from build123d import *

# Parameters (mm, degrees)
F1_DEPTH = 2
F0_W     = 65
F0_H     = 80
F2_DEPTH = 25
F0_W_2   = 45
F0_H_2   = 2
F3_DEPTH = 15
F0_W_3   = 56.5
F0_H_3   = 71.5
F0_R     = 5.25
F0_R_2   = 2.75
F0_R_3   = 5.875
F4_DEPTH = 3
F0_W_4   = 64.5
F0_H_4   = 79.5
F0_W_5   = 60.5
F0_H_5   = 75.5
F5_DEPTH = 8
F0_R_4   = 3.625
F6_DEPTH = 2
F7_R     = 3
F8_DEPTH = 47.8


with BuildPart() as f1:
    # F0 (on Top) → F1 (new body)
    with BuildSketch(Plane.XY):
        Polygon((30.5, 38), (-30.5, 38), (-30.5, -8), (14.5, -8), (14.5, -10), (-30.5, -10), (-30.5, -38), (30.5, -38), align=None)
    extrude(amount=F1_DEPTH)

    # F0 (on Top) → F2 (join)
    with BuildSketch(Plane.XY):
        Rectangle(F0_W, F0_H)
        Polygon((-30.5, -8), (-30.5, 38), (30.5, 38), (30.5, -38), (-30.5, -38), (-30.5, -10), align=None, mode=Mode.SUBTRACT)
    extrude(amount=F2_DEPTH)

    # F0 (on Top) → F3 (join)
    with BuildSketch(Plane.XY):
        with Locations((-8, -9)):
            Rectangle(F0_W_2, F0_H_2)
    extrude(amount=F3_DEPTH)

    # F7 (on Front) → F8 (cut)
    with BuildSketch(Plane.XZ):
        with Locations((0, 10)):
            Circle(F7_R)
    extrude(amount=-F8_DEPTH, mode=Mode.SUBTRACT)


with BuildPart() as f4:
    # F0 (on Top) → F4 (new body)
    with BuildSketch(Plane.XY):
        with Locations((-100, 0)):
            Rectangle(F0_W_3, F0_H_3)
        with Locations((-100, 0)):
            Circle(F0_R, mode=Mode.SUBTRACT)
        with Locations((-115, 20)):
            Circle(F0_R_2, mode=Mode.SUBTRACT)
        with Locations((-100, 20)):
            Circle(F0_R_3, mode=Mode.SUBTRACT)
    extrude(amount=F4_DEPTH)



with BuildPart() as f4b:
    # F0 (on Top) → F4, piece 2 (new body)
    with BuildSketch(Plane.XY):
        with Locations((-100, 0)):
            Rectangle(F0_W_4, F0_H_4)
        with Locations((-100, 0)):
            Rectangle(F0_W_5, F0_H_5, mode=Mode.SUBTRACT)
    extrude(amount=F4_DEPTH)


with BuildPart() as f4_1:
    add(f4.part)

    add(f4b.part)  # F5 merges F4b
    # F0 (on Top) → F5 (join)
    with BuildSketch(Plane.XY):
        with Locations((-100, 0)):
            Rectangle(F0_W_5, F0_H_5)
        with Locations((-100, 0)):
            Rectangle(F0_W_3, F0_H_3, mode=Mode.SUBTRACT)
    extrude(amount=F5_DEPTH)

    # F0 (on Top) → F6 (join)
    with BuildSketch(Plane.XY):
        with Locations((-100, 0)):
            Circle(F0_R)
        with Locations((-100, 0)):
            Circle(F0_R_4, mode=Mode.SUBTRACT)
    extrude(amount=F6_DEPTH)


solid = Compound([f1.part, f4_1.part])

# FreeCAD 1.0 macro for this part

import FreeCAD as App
import Part
import Sketcher

doc = App.newDocument("Part")
params = doc.addObject("Spreadsheet::Sheet", "Params")
for row, (alias, value) in enumerate([
    ("sketch1_width", "61 mm"),
    ("sketch1_width2", "45 mm"),
    ("sketch1_height", "46 mm"),
    ("sketch1_height2", "2 mm"),
    ("sketch1_height3", "28 mm"),
    ("pad1_length", "2 mm"),
    ("sketch2_width", "65 mm"),
    ("sketch2_width2", "61 mm"),
    ("sketch2_height", "80 mm"),
    ("sketch2_height2", "76 mm"),
    ("pad2_length", "25 mm"),
    ("sketch3_width", "45 mm"),
    ("sketch3_height", "2 mm"),
    ("pad3_length", "15 mm"),
    ("sketch4_diameter", "6 mm"),
    ("pocket1_length", "47.8 mm"),
    ("sketch5_diameter", "10.5 mm"),
    ("sketch5_diameter2", "5.5 mm"),
    ("sketch5_diameter3", "11.75 mm"),
    ("sketch5_width", "56.5 mm"),
    ("sketch5_height", "71.5 mm"),
    ("pad4_length", "3 mm"),
    ("sketch6_width", "64.5 mm"),
    ("sketch6_width2", "60.5 mm"),
    ("sketch6_height", "79.5 mm"),
    ("sketch6_height2", "75.5 mm"),
    ("pad5_length", "3 mm"),
    ("sketch7_width", "60.5 mm"),
    ("sketch7_width2", "56.5 mm"),
    ("sketch7_height", "75.5 mm"),
    ("sketch7_height2", "71.5 mm"),
    ("pad6_length", "8 mm"),
    ("sketch8_diameter", "10.5 mm"),
    ("sketch8_diameter2", "7.25 mm"),
    ("pad7_length", "2 mm"),
], start=1):
    params.set(f"A{row}", alias)
    params.set(f"B{row}", "=" + value)
    params.setAlias(f"B{row}", alias)

body = doc.addObject("PartDesign::Body", "Body")

# Sketch on XY plane
sketch1 = body.newObject("Sketcher::SketchObject", "Sketch")
sketch1.AttachmentSupport = (doc.getObject("XY_Plane"), [""])
sketch1.MapMode = "FlatFace"
sketch1.addGeometry(Part.LineSegment(App.Vector(30.5, 38, 0), App.Vector(-30.5, 38, 0)), False)
sketch1.addGeometry(Part.LineSegment(App.Vector(-30.5, 38, 0), App.Vector(-30.5, -8, 0)), False)
sketch1.addGeometry(Part.LineSegment(App.Vector(-30.5, -8, 0), App.Vector(14.5, -8, 0)), False)
sketch1.addGeometry(Part.LineSegment(App.Vector(14.5, -8, 0), App.Vector(14.5, -10, 0)), False)
sketch1.addGeometry(Part.LineSegment(App.Vector(14.5, -10, 0), App.Vector(-30.5, -10, 0)), False)
sketch1.addGeometry(Part.LineSegment(App.Vector(-30.5, -10, 0), App.Vector(-30.5, -38, 0)), False)
sketch1.addGeometry(Part.LineSegment(App.Vector(-30.5, -38, 0), App.Vector(30.5, -38, 0)), False)
sketch1.addGeometry(Part.LineSegment(App.Vector(30.5, -38, 0), App.Vector(30.5, 38, 0)), False)
sketch1.addConstraint(Sketcher.Constraint("Coincident", 0, 2, 1, 1))
sketch1.addConstraint(Sketcher.Constraint("Coincident", 1, 2, 2, 1))
sketch1.addConstraint(Sketcher.Constraint("Coincident", 2, 2, 3, 1))
sketch1.addConstraint(Sketcher.Constraint("Coincident", 3, 2, 4, 1))
sketch1.addConstraint(Sketcher.Constraint("Coincident", 4, 2, 5, 1))
sketch1.addConstraint(Sketcher.Constraint("Coincident", 5, 2, 6, 1))
sketch1.addConstraint(Sketcher.Constraint("Coincident", 6, 2, 7, 1))
sketch1.addConstraint(Sketcher.Constraint("Coincident", 7, 2, 0, 1))
sketch1.addConstraint(Sketcher.Constraint("Horizontal", 0))
sketch1.addConstraint(Sketcher.Constraint("Vertical", 1))
sketch1.addConstraint(Sketcher.Constraint("Horizontal", 2))
sketch1.addConstraint(Sketcher.Constraint("Vertical", 3))
sketch1.addConstraint(Sketcher.Constraint("Horizontal", 4))
sketch1.addConstraint(Sketcher.Constraint("Vertical", 5))
sketch1.addConstraint(Sketcher.Constraint("Horizontal", 6))
sketch1.addConstraint(Sketcher.Constraint("Vertical", 7))
sketch1.addConstraint(Sketcher.Constraint("Symmetric", 0, 2, 6, 2, -1, 1))
sketch1.addConstraint(Sketcher.Constraint("Vertical", 1, 2, 4, 2))
sketch1.addConstraint(Sketcher.Constraint("DistanceX", 0, 2, 0, 1, 61.0))
sketch1.addConstraint(Sketcher.Constraint("DistanceX", 2, 1, 2, 2, 45.0))
sketch1.addConstraint(Sketcher.Constraint("DistanceY", 1, 2, 1, 1, 46.0))
sketch1.addConstraint(Sketcher.Constraint("DistanceY", 3, 2, 3, 1, 2.0))
sketch1.addConstraint(Sketcher.Constraint("DistanceY", 5, 2, 5, 1, 28.0))
sketch1.setExpression("Constraints[18]", "Params.sketch1_width")
sketch1.setExpression("Constraints[19]", "Params.sketch1_width2")
sketch1.setExpression("Constraints[20]", "Params.sketch1_height")
sketch1.setExpression("Constraints[21]", "Params.sketch1_height2")
sketch1.setExpression("Constraints[22]", "Params.sketch1_height3")
pad1 = body.newObject("PartDesign::Pad", "Pad")
pad1.Profile = sketch1
pad1.setExpression("Length", "Params.pad1_length")

# Sketch on XY plane
sketch2 = body.newObject("Sketcher::SketchObject", "Sketch001")
sketch2.AttachmentSupport = (doc.getObject("XY_Plane"), [""])
sketch2.MapMode = "FlatFace"
sketch2.addGeometry(Part.LineSegment(App.Vector(-32.5, 40, 0), App.Vector(-32.5, -40, 0)), False)
sketch2.addGeometry(Part.LineSegment(App.Vector(-32.5, -40, 0), App.Vector(32.5, -40, 0)), False)
sketch2.addGeometry(Part.LineSegment(App.Vector(32.5, -40, 0), App.Vector(32.5, 40, 0)), False)
sketch2.addGeometry(Part.LineSegment(App.Vector(32.5, 40, 0), App.Vector(-32.5, 40, 0)), False)
sketch2.addGeometry(Part.LineSegment(App.Vector(-30.5, -38, 0), App.Vector(-30.5, 38, 0)), False)
sketch2.addGeometry(Part.LineSegment(App.Vector(-30.5, 38, 0), App.Vector(30.5, 38, 0)), False)
sketch2.addGeometry(Part.LineSegment(App.Vector(30.5, 38, 0), App.Vector(30.5, -38, 0)), False)
sketch2.addGeometry(Part.LineSegment(App.Vector(30.5, -38, 0), App.Vector(-30.5, -38, 0)), False)
sketch2.addConstraint(Sketcher.Constraint("Coincident", 0, 2, 1, 1))
sketch2.addConstraint(Sketcher.Constraint("Coincident", 1, 2, 2, 1))
sketch2.addConstraint(Sketcher.Constraint("Coincident", 2, 2, 3, 1))
sketch2.addConstraint(Sketcher.Constraint("Coincident", 3, 2, 0, 1))
sketch2.addConstraint(Sketcher.Constraint("Coincident", 4, 2, 5, 1))
sketch2.addConstraint(Sketcher.Constraint("Coincident", 5, 2, 6, 1))
sketch2.addConstraint(Sketcher.Constraint("Coincident", 6, 2, 7, 1))
sketch2.addConstraint(Sketcher.Constraint("Coincident", 7, 2, 4, 1))
sketch2.addConstraint(Sketcher.Constraint("Vertical", 0))
sketch2.addConstraint(Sketcher.Constraint("Horizontal", 1))
sketch2.addConstraint(Sketcher.Constraint("Vertical", 2))
sketch2.addConstraint(Sketcher.Constraint("Horizontal", 3))
sketch2.addConstraint(Sketcher.Constraint("Vertical", 4))
sketch2.addConstraint(Sketcher.Constraint("Horizontal", 5))
sketch2.addConstraint(Sketcher.Constraint("Vertical", 6))
sketch2.addConstraint(Sketcher.Constraint("Horizontal", 7))
sketch2.addConstraint(Sketcher.Constraint("Symmetric", 0, 2, 2, 2, -1, 1))
sketch2.addConstraint(Sketcher.Constraint("Symmetric", 4, 2, 6, 2, -1, 1))
sketch2.addConstraint(Sketcher.Constraint("DistanceX", 1, 1, 1, 2, 65.0))
sketch2.addConstraint(Sketcher.Constraint("DistanceX", 5, 1, 5, 2, 61.0))
sketch2.addConstraint(Sketcher.Constraint("DistanceY", 0, 2, 0, 1, 80.0))
sketch2.addConstraint(Sketcher.Constraint("DistanceY", 4, 1, 4, 2, 76.0))
sketch2.setExpression("Constraints[18]", "Params.sketch2_width")
sketch2.setExpression("Constraints[19]", "Params.sketch2_width2")
sketch2.setExpression("Constraints[20]", "Params.sketch2_height")
sketch2.setExpression("Constraints[21]", "Params.sketch2_height2")
pad2 = body.newObject("PartDesign::Pad", "Pad001")
pad2.Profile = sketch2
pad2.setExpression("Length", "Params.pad2_length")

# Sketch on XY plane
sketch3 = body.newObject("Sketcher::SketchObject", "Sketch002")
sketch3.AttachmentSupport = (doc.getObject("XY_Plane"), [""])
sketch3.MapMode = "FlatFace"
sketch3.addGeometry(Part.LineSegment(App.Vector(-30.5, -8, 0), App.Vector(-30.5, -10, 0)), False)
sketch3.addGeometry(Part.LineSegment(App.Vector(-30.5, -10, 0), App.Vector(14.5, -10, 0)), False)
sketch3.addGeometry(Part.LineSegment(App.Vector(14.5, -10, 0), App.Vector(14.5, -8, 0)), False)
sketch3.addGeometry(Part.LineSegment(App.Vector(14.5, -8, 0), App.Vector(-30.5, -8, 0)), False)
sketch3.addConstraint(Sketcher.Constraint("Coincident", 0, 2, 1, 1))
sketch3.addConstraint(Sketcher.Constraint("Coincident", 1, 2, 2, 1))
sketch3.addConstraint(Sketcher.Constraint("Coincident", 2, 2, 3, 1))
sketch3.addConstraint(Sketcher.Constraint("Coincident", 3, 2, 0, 1))
sketch3.addConstraint(Sketcher.Constraint("Vertical", 0))
sketch3.addConstraint(Sketcher.Constraint("Horizontal", 1))
sketch3.addConstraint(Sketcher.Constraint("Vertical", 2))
sketch3.addConstraint(Sketcher.Constraint("Horizontal", 3))
sketch3.addConstraint(Sketcher.Constraint("DistanceX", 1, 1, 1, 2, 45.0))
sketch3.addConstraint(Sketcher.Constraint("DistanceY", 0, 2, 0, 1, 2.0))
sketch3.addConstraint(Sketcher.Constraint("DistanceY", 0, 2, -1, 1, 10.0))
sketch3.addConstraint(Sketcher.Constraint("DistanceX", 0, 2, -1, 1, 30.5))
sketch3.setExpression("Constraints[8]", "Params.sketch3_width")
sketch3.setExpression("Constraints[9]", "Params.sketch3_height")
pad3 = body.newObject("PartDesign::Pad", "Pad002")
pad3.Profile = sketch3
pad3.setExpression("Length", "Params.pad3_length")

# Sketch on XZ plane
sketch4 = body.newObject("Sketcher::SketchObject", "Sketch003")
sketch4.AttachmentSupport = (doc.getObject("XZ_Plane"), [""])
sketch4.MapMode = "FlatFace"
sketch4.addGeometry(Part.Circle(App.Vector(0, 10, 0), App.Vector(0, 0, 1), 3), False)
sketch4.addConstraint(Sketcher.Constraint("PointOnObject", 0, 3, -2))
sketch4.addConstraint(Sketcher.Constraint("Diameter", 0, 6.0))
sketch4.addConstraint(Sketcher.Constraint("DistanceY", -1, 1, 0, 3, 10.0))
sketch4.setExpression("Constraints[1]", "Params.sketch4_diameter")
pocket1 = body.newObject("PartDesign::Pocket", "Pocket")
pocket1.Profile = sketch4
pocket1.setExpression("Length", "Params.pocket1_length")
body2 = doc.addObject("PartDesign::Body", "Body001")

# Sketch on XY plane
sketch5 = body2.newObject("Sketcher::SketchObject", "Sketch004")
sketch5.AttachmentSupport = (doc.getObject("XY_Plane001"), [""])
sketch5.MapMode = "FlatFace"
sketch5.addGeometry(Part.LineSegment(App.Vector(-128.25, 35.75, 0), App.Vector(-128.25, -35.75, 0)), False)
sketch5.addGeometry(Part.LineSegment(App.Vector(-128.25, -35.75, 0), App.Vector(-71.75, -35.75, 0)), False)
sketch5.addGeometry(Part.LineSegment(App.Vector(-71.75, -35.75, 0), App.Vector(-71.75, 35.75, 0)), False)
sketch5.addGeometry(Part.LineSegment(App.Vector(-71.75, 35.75, 0), App.Vector(-128.25, 35.75, 0)), False)
sketch5.addGeometry(Part.Circle(App.Vector(-100, 0, 0), App.Vector(0, 0, 1), 5.25), False)
sketch5.addGeometry(Part.Circle(App.Vector(-115, 20, 0), App.Vector(0, 0, 1), 2.75), False)
sketch5.addGeometry(Part.Circle(App.Vector(-100, 20, 0), App.Vector(0, 0, 1), 5.875), False)
sketch5.addConstraint(Sketcher.Constraint("Coincident", 0, 2, 1, 1))
sketch5.addConstraint(Sketcher.Constraint("Coincident", 1, 2, 2, 1))
sketch5.addConstraint(Sketcher.Constraint("Coincident", 2, 2, 3, 1))
sketch5.addConstraint(Sketcher.Constraint("Coincident", 3, 2, 0, 1))
sketch5.addConstraint(Sketcher.Constraint("Vertical", 0))
sketch5.addConstraint(Sketcher.Constraint("Horizontal", 1))
sketch5.addConstraint(Sketcher.Constraint("Vertical", 2))
sketch5.addConstraint(Sketcher.Constraint("Horizontal", 3))
sketch5.addConstraint(Sketcher.Constraint("PointOnObject", 4, 3, -1))
sketch5.addConstraint(Sketcher.Constraint("Horizontal", 5, 3, 6, 3))
sketch5.addConstraint(Sketcher.Constraint("Vertical", 4, 3, 6, 3))
sketch5.addConstraint(Sketcher.Constraint("Diameter", 4, 10.5))
sketch5.addConstraint(Sketcher.Constraint("Diameter", 5, 5.5))
sketch5.addConstraint(Sketcher.Constraint("Diameter", 6, 11.75))
sketch5.addConstraint(Sketcher.Constraint("DistanceX", 1, 1, 1, 2, 56.5))
sketch5.addConstraint(Sketcher.Constraint("DistanceY", 0, 2, 0, 1, 71.5))
sketch5.addConstraint(Sketcher.Constraint("DistanceX", 4, 3, -1, 1, 100.0))
sketch5.addConstraint(Sketcher.Constraint("DistanceX", 5, 3, -1, 1, 115.0))
sketch5.addConstraint(Sketcher.Constraint("DistanceY", -1, 1, 5, 3, 20.0))
sketch5.addConstraint(Sketcher.Constraint("DistanceX", 0, 2, -1, 1, 128.25))
sketch5.addConstraint(Sketcher.Constraint("DistanceY", 0, 2, -1, 1, 35.75))
sketch5.setExpression("Constraints[11]", "Params.sketch5_diameter")
sketch5.setExpression("Constraints[12]", "Params.sketch5_diameter2")
sketch5.setExpression("Constraints[13]", "Params.sketch5_diameter3")
sketch5.setExpression("Constraints[14]", "Params.sketch5_width")
sketch5.setExpression("Constraints[15]", "Params.sketch5_height")
pad4 = body2.newObject("PartDesign::Pad", "Pad003")
pad4.Profile = sketch5
pad4.setExpression("Length", "Params.pad4_length")
body3 = doc.addObject("PartDesign::Body", "Body002")

# Sketch on XY plane
sketch6 = body3.newObject("Sketcher::SketchObject", "Sketch005")
sketch6.AttachmentSupport = (doc.getObject("XY_Plane002"), [""])
sketch6.MapMode = "FlatFace"
sketch6.addGeometry(Part.LineSegment(App.Vector(-132.25, 39.75, 0), App.Vector(-132.25, -39.75, 0)), False)
sketch6.addGeometry(Part.LineSegment(App.Vector(-132.25, -39.75, 0), App.Vector(-67.75, -39.75, 0)), False)
sketch6.addGeometry(Part.LineSegment(App.Vector(-67.75, -39.75, 0), App.Vector(-67.75, 39.75, 0)), False)
sketch6.addGeometry(Part.LineSegment(App.Vector(-67.75, 39.75, 0), App.Vector(-132.25, 39.75, 0)), False)
sketch6.addGeometry(Part.LineSegment(App.Vector(-69.75, -37.75, 0), App.Vector(-130.25, -37.75, 0)), False)
sketch6.addGeometry(Part.LineSegment(App.Vector(-130.25, -37.75, 0), App.Vector(-130.25, 37.75, 0)), False)
sketch6.addGeometry(Part.LineSegment(App.Vector(-130.25, 37.75, 0), App.Vector(-69.75, 37.75, 0)), False)
sketch6.addGeometry(Part.LineSegment(App.Vector(-69.75, 37.75, 0), App.Vector(-69.75, -37.75, 0)), False)
sketch6.addConstraint(Sketcher.Constraint("Coincident", 0, 2, 1, 1))
sketch6.addConstraint(Sketcher.Constraint("Coincident", 1, 2, 2, 1))
sketch6.addConstraint(Sketcher.Constraint("Coincident", 2, 2, 3, 1))
sketch6.addConstraint(Sketcher.Constraint("Coincident", 3, 2, 0, 1))
sketch6.addConstraint(Sketcher.Constraint("Coincident", 4, 2, 5, 1))
sketch6.addConstraint(Sketcher.Constraint("Coincident", 5, 2, 6, 1))
sketch6.addConstraint(Sketcher.Constraint("Coincident", 6, 2, 7, 1))
sketch6.addConstraint(Sketcher.Constraint("Coincident", 7, 2, 4, 1))
sketch6.addConstraint(Sketcher.Constraint("Vertical", 0))
sketch6.addConstraint(Sketcher.Constraint("Horizontal", 1))
sketch6.addConstraint(Sketcher.Constraint("Vertical", 2))
sketch6.addConstraint(Sketcher.Constraint("Horizontal", 3))
sketch6.addConstraint(Sketcher.Constraint("Horizontal", 4))
sketch6.addConstraint(Sketcher.Constraint("Vertical", 5))
sketch6.addConstraint(Sketcher.Constraint("Horizontal", 6))
sketch6.addConstraint(Sketcher.Constraint("Vertical", 7))
sketch6.addConstraint(Sketcher.Constraint("DistanceX", 1, 1, 1, 2, 64.5))
sketch6.addConstraint(Sketcher.Constraint("DistanceX", 4, 2, 4, 1, 60.5))
sketch6.addConstraint(Sketcher.Constraint("DistanceY", 0, 2, 0, 1, 79.5))
sketch6.addConstraint(Sketcher.Constraint("DistanceY", 5, 1, 5, 2, 75.5))
sketch6.addConstraint(Sketcher.Constraint("DistanceX", 0, 2, 4, 2, 2.0))
sketch6.addConstraint(Sketcher.Constraint("DistanceY", 0, 2, 4, 2, 2.0))
sketch6.addConstraint(Sketcher.Constraint("DistanceX", 0, 2, -1, 1, 132.25))
sketch6.addConstraint(Sketcher.Constraint("DistanceY", 0, 2, -1, 1, 39.75))
sketch6.setExpression("Constraints[16]", "Params.sketch6_width")
sketch6.setExpression("Constraints[17]", "Params.sketch6_width2")
sketch6.setExpression("Constraints[18]", "Params.sketch6_height")
sketch6.setExpression("Constraints[19]", "Params.sketch6_height2")
pad5 = body3.newObject("PartDesign::Pad", "Pad004")
pad5.Profile = sketch6
pad5.setExpression("Length", "Params.pad5_length")
body2.AllowCompound = True
doc.recompute()

boolean = body2.newObject("PartDesign::Boolean", "Boolean")
boolean.Type = "Fuse"
boolean.addObjects([body3])

# Sketch on XY plane
sketch7 = body2.newObject("Sketcher::SketchObject", "Sketch006")
sketch7.AttachmentSupport = (doc.getObject("XY_Plane001"), [""])
sketch7.MapMode = "FlatFace"
sketch7.addGeometry(Part.LineSegment(App.Vector(-130.25, 37.75, 0), App.Vector(-130.25, -37.75, 0)), False)
sketch7.addGeometry(Part.LineSegment(App.Vector(-130.25, -37.75, 0), App.Vector(-69.75, -37.75, 0)), False)
sketch7.addGeometry(Part.LineSegment(App.Vector(-69.75, -37.75, 0), App.Vector(-69.75, 37.75, 0)), False)
sketch7.addGeometry(Part.LineSegment(App.Vector(-69.75, 37.75, 0), App.Vector(-130.25, 37.75, 0)), False)
sketch7.addGeometry(Part.LineSegment(App.Vector(-71.75, -35.75, 0), App.Vector(-128.25, -35.75, 0)), False)
sketch7.addGeometry(Part.LineSegment(App.Vector(-128.25, -35.75, 0), App.Vector(-128.25, 35.75, 0)), False)
sketch7.addGeometry(Part.LineSegment(App.Vector(-128.25, 35.75, 0), App.Vector(-71.75, 35.75, 0)), False)
sketch7.addGeometry(Part.LineSegment(App.Vector(-71.75, 35.75, 0), App.Vector(-71.75, -35.75, 0)), False)
sketch7.addConstraint(Sketcher.Constraint("Coincident", 0, 2, 1, 1))
sketch7.addConstraint(Sketcher.Constraint("Coincident", 1, 2, 2, 1))
sketch7.addConstraint(Sketcher.Constraint("Coincident", 2, 2, 3, 1))
sketch7.addConstraint(Sketcher.Constraint("Coincident", 3, 2, 0, 1))
sketch7.addConstraint(Sketcher.Constraint("Coincident", 4, 2, 5, 1))
sketch7.addConstraint(Sketcher.Constraint("Coincident", 5, 2, 6, 1))
sketch7.addConstraint(Sketcher.Constraint("Coincident", 6, 2, 7, 1))
sketch7.addConstraint(Sketcher.Constraint("Coincident", 7, 2, 4, 1))
sketch7.addConstraint(Sketcher.Constraint("Vertical", 0))
sketch7.addConstraint(Sketcher.Constraint("Horizontal", 1))
sketch7.addConstraint(Sketcher.Constraint("Vertical", 2))
sketch7.addConstraint(Sketcher.Constraint("Horizontal", 3))
sketch7.addConstraint(Sketcher.Constraint("Horizontal", 4))
sketch7.addConstraint(Sketcher.Constraint("Vertical", 5))
sketch7.addConstraint(Sketcher.Constraint("Horizontal", 6))
sketch7.addConstraint(Sketcher.Constraint("Vertical", 7))
sketch7.addConstraint(Sketcher.Constraint("DistanceX", 1, 1, 1, 2, 60.5))
sketch7.addConstraint(Sketcher.Constraint("DistanceX", 4, 2, 4, 1, 56.5))
sketch7.addConstraint(Sketcher.Constraint("DistanceY", 0, 2, 0, 1, 75.5))
sketch7.addConstraint(Sketcher.Constraint("DistanceY", 5, 1, 5, 2, 71.5))
sketch7.addConstraint(Sketcher.Constraint("DistanceX", 0, 2, 4, 2, 2.0))
sketch7.addConstraint(Sketcher.Constraint("DistanceY", 0, 2, 4, 2, 2.0))
sketch7.addConstraint(Sketcher.Constraint("DistanceX", 0, 2, -1, 1, 130.25))
sketch7.addConstraint(Sketcher.Constraint("DistanceY", 0, 2, -1, 1, 37.75))
sketch7.setExpression("Constraints[16]", "Params.sketch7_width")
sketch7.setExpression("Constraints[17]", "Params.sketch7_width2")
sketch7.setExpression("Constraints[18]", "Params.sketch7_height")
sketch7.setExpression("Constraints[19]", "Params.sketch7_height2")
pad6 = body2.newObject("PartDesign::Pad", "Pad005")
pad6.Profile = sketch7
pad6.setExpression("Length", "Params.pad6_length")

# Sketch on XY plane
sketch8 = body2.newObject("Sketcher::SketchObject", "Sketch007")
sketch8.AttachmentSupport = (doc.getObject("XY_Plane001"), [""])
sketch8.MapMode = "FlatFace"
sketch8.addGeometry(Part.Circle(App.Vector(-100, 0, 0), App.Vector(0, 0, 1), 5.25), False)
sketch8.addGeometry(Part.Circle(App.Vector(-100, 0, 0), App.Vector(0, 0, 1), 3.625), False)
sketch8.addConstraint(Sketcher.Constraint("Coincident", 1, 3, 0, 3))
sketch8.addConstraint(Sketcher.Constraint("PointOnObject", 0, 3, -1))
sketch8.addConstraint(Sketcher.Constraint("Diameter", 0, 10.5))
sketch8.addConstraint(Sketcher.Constraint("Diameter", 1, 7.25))
sketch8.addConstraint(Sketcher.Constraint("DistanceX", 0, 3, -1, 1, 100.0))
sketch8.setExpression("Constraints[2]", "Params.sketch8_diameter")
sketch8.setExpression("Constraints[3]", "Params.sketch8_diameter2")
pad7 = body2.newObject("PartDesign::Pad", "Pad006")
pad7.Profile = sketch8
pad7.setExpression("Length", "Params.pad7_length")

doc.recompute()
